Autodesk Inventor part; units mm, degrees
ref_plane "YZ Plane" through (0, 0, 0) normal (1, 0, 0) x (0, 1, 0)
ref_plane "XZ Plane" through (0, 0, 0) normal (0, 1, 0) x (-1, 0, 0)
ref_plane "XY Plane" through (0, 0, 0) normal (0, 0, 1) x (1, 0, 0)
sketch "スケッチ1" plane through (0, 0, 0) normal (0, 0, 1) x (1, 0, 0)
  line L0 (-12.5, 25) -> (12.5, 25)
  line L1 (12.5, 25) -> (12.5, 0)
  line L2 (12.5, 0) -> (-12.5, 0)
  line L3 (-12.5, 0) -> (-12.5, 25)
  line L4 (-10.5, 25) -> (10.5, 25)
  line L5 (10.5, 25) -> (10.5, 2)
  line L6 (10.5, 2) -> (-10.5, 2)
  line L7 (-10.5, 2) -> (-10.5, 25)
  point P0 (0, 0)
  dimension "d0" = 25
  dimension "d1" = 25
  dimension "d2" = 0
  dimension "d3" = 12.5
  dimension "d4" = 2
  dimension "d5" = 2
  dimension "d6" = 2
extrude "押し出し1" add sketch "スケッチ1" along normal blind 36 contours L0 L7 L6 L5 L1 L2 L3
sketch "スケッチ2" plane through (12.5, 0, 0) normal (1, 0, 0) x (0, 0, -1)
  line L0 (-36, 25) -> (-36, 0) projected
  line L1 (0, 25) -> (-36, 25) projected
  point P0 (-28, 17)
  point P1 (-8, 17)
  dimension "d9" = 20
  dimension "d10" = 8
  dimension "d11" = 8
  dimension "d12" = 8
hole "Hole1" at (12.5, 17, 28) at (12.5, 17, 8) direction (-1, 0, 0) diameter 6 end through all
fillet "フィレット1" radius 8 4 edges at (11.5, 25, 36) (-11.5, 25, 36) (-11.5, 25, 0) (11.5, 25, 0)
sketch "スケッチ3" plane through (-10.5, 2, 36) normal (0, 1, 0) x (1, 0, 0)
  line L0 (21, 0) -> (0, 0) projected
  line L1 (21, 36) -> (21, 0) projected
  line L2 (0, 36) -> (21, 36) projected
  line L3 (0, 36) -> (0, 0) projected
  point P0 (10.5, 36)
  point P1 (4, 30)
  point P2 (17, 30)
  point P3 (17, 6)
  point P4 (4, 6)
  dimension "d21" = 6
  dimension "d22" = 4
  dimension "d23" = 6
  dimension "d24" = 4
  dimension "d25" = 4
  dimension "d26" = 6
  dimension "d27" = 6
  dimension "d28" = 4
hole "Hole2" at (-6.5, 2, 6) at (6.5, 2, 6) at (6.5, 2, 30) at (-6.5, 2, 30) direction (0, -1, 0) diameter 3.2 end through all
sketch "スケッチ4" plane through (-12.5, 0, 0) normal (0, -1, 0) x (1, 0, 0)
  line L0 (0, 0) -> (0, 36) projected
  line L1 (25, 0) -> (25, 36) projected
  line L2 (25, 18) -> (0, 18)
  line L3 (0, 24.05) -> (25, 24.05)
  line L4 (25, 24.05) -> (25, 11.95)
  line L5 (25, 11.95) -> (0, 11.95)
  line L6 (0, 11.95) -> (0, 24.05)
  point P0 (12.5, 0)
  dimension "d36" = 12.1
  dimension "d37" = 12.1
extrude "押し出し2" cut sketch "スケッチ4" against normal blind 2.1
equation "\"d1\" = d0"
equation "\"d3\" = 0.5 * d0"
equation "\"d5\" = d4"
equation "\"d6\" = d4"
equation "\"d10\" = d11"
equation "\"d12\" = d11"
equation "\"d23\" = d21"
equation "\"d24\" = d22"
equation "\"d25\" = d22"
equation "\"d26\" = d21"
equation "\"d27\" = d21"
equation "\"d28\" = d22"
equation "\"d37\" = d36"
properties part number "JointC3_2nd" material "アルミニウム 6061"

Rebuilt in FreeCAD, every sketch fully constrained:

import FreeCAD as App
import Part
import Sketcher
Q = App.Units.Quantity


def edges_at(feature, points):
    """Names of the edges that pass closest to the given points."""
    edges = feature.Shape.Edges
    near = lambda p: min(range(len(edges)), key=lambda i: edges[i].distToShape(Part.Vertex(*p))[0])
    return sorted({f"Edge{near(p) + 1}" for p in points})


def add_polygon(sketch, points):
    """Adds a closed chain of lines whose ends are joined by coincident constraints."""
    first, n = sketch.GeometryCount, len(points)
    for a, b in zip(points, points[1:] + points[:1]):
        sketch.addGeometry(Part.LineSegment(App.Vector(*a, 0), App.Vector(*b, 0)), False)
    for i in range(n):
        sketch.addConstraint(Sketcher.Constraint("Coincident", first + i, 2, first + (i + 1) % n, 1))

doc = App.newDocument("Part")
body = doc.addObject("PartDesign::Body", "Body")

# Sketch on XY plane
sketch1 = body.newObject("Sketcher::SketchObject", "Sketch")
sketch1.AttachmentSupport = (doc.getObject("XY_Plane"), [""])
sketch1.MapMode = "FlatFace"
add_polygon(sketch1, [(-10.5, 25), (-12.5, 25), (-12.5, 0), (12.5, 0), (12.5, 25), (10.5, 25), (10.5, 2), (-10.5, 2)])  # lines 0-7
sketch1.addConstraint(Sketcher.Constraint("Horizontal", 0))
sketch1.addConstraint(Sketcher.Constraint("Vertical", 1))
sketch1.addConstraint(Sketcher.Constraint("Horizontal", 2))
sketch1.addConstraint(Sketcher.Constraint("Vertical", 3))
sketch1.addConstraint(Sketcher.Constraint("Horizontal", 4))
sketch1.addConstraint(Sketcher.Constraint("Vertical", 5))
sketch1.addConstraint(Sketcher.Constraint("Horizontal", 6))
sketch1.addConstraint(Sketcher.Constraint("Vertical", 7))
sketch1.addConstraint(Sketcher.Constraint("Symmetric", 1, 2, 2, 2, -1, 1))
sketch1.addConstraint(Sketcher.Constraint("Symmetric", 4, 2, 7, 2, -2))
sketch1.addConstraint(Sketcher.Constraint("Equal", 2, 1))
sketch1.addConstraint(Sketcher.Constraint("DistanceX", 0, 2, 0, 1, Q("2 mm")))
sketch1.addConstraint(Sketcher.Constraint("DistanceX", 2, 1, 2, 2, Q("25 mm")))
sketch1.addConstraint(Sketcher.Constraint("DistanceY", -1, 1, 5, 2, Q("2 mm")))
pad1 = body.newObject("PartDesign::Pad", "Pad")
pad1.Profile = sketch1
pad1.Length = 36

# Sketch on YZ plane
sketch2 = body.newObject("Sketcher::SketchObject", "Sketch001")
sketch2.AttachmentSupport = (doc.getObject("YZ_Plane"), [""])
sketch2.MapMode = "FlatFace"
sketch2.AttachmentOffset = App.Placement(App.Vector(0, 0, 12.5), App.Rotation())
sketch2.addGeometry(Part.Circle(App.Vector(17, 28, 0), App.Vector(0, 0, 1), 3), False)
sketch2.addGeometry(Part.Circle(App.Vector(17, 8, 0), App.Vector(0, 0, 1), 3), False)
sketch2.addConstraint(Sketcher.Constraint("Equal", 0, 1))
sketch2.addConstraint(Sketcher.Constraint("Vertical", 0, 3, 1, 3))
sketch2.addConstraint(Sketcher.Constraint("Diameter", 0, Q("6 mm")))
sketch2.addConstraint(Sketcher.Constraint("DistanceX", -1, 1, 0, 3, Q("17 mm")))
sketch2.addConstraint(Sketcher.Constraint("DistanceY", -1, 1, 0, 3, Q("28 mm")))
sketch2.addConstraint(Sketcher.Constraint("DistanceY", -1, 1, 1, 3, Q("8 mm")))
doc.recompute()
hole = body.newObject("PartDesign::Hole", "Hole")
hole.Profile = sketch2
hole.ThreadType = "None"
hole.Diameter = 6
hole.DepthType = "ThroughAll"
doc.recompute()

fillet = body.newObject("PartDesign::Fillet", "Fillet")
fillet.Base = (hole, edges_at(hole, [
    (11.5, 25, 36),
    (-11.5, 25, 36),
    (-11.5, 25, 0),
    (11.5, 25, 0),
]))
fillet.Radius = 8

# Sketch on XZ plane
sketch3 = body.newObject("Sketcher::SketchObject", "Sketch002")
sketch3.AttachmentSupport = (doc.getObject("XZ_Plane"), [""])
sketch3.MapMode = "FlatFace"
sketch3.AttachmentOffset = App.Placement(App.Vector(0, 0, -2), App.Rotation())
sketch3.addGeometry(Part.Circle(App.Vector(-6.5, 6, 0), App.Vector(0, 0, 1), 1.6), False)
sketch3.addGeometry(Part.Circle(App.Vector(6.5, 6, 0), App.Vector(0, 0, 1), 1.6), False)
sketch3.addGeometry(Part.Circle(App.Vector(6.5, 30, 0), App.Vector(0, 0, 1), 1.6), False)
sketch3.addGeometry(Part.Circle(App.Vector(-6.5, 30, 0), App.Vector(0, 0, 1), 1.6), False)
sketch3.addConstraint(Sketcher.Constraint("Equal", 0, 1))
sketch3.addConstraint(Sketcher.Constraint("Equal", 1, 2))
sketch3.addConstraint(Sketcher.Constraint("Equal", 2, 3))
sketch3.addConstraint(Sketcher.Constraint("Symmetric", 0, 3, 1, 3, -2))
sketch3.addConstraint(Sketcher.Constraint("Symmetric", 2, 3, 3, 3, -2))
sketch3.addConstraint(Sketcher.Constraint("Vertical", 1, 3, 2, 3))
sketch3.addConstraint(Sketcher.Constraint("Diameter", 0, Q("3.2 mm")))
sketch3.addConstraint(Sketcher.Constraint("DistanceY", -1, 1, 0, 3, Q("6 mm")))
sketch3.addConstraint(Sketcher.Constraint("DistanceY", -1, 1, 2, 3, Q("30 mm")))
sketch3.addConstraint(Sketcher.Constraint("DistanceX", 0, 3, 1, 3, Q("13 mm")))
doc.recompute()
hole2 = body.newObject("PartDesign::Hole", "Hole001")
hole2.Profile = sketch3
hole2.ThreadType = "None"
hole2.Diameter = 3.2
hole2.DepthType = "ThroughAll"
hole2.Reversed = True

# Sketch on XZ plane
sketch4 = body.newObject("Sketcher::SketchObject", "Sketch003")
sketch4.AttachmentSupport = (doc.getObject("XZ_Plane"), [""])
sketch4.MapMode = "FlatFace"
add_polygon(sketch4, [(-12.5, 11.95), (12.5, 11.95), (12.5, 24.05), (-12.5, 24.05)])  # lines 0-3
sketch4.addConstraint(Sketcher.Constraint("Horizontal", 0))
sketch4.addConstraint(Sketcher.Constraint("Vertical", 1))
sketch4.addConstraint(Sketcher.Constraint("Horizontal", 2))
sketch4.addConstraint(Sketcher.Constraint("Vertical", 3))
sketch4.addConstraint(Sketcher.Constraint("DistanceY", 1, 1, 1, 2, Q("12.1 mm")))
sketch4.addConstraint(Sketcher.Constraint("DistanceX", 0, 1, 0, 2, Q("25 mm")))
sketch4.addConstraint(Sketcher.Constraint("DistanceX", -1, 1, 0, 2, Q("12.5 mm")))
sketch4.addConstraint(Sketcher.Constraint("DistanceY", -1, 1, 0, 2, Q("11.95 mm")))
pocket1 = body.newObject("PartDesign::Pocket", "Pocket")
pocket1.Profile = sketch4
pocket1.Length = 2.1

doc.recompute()
